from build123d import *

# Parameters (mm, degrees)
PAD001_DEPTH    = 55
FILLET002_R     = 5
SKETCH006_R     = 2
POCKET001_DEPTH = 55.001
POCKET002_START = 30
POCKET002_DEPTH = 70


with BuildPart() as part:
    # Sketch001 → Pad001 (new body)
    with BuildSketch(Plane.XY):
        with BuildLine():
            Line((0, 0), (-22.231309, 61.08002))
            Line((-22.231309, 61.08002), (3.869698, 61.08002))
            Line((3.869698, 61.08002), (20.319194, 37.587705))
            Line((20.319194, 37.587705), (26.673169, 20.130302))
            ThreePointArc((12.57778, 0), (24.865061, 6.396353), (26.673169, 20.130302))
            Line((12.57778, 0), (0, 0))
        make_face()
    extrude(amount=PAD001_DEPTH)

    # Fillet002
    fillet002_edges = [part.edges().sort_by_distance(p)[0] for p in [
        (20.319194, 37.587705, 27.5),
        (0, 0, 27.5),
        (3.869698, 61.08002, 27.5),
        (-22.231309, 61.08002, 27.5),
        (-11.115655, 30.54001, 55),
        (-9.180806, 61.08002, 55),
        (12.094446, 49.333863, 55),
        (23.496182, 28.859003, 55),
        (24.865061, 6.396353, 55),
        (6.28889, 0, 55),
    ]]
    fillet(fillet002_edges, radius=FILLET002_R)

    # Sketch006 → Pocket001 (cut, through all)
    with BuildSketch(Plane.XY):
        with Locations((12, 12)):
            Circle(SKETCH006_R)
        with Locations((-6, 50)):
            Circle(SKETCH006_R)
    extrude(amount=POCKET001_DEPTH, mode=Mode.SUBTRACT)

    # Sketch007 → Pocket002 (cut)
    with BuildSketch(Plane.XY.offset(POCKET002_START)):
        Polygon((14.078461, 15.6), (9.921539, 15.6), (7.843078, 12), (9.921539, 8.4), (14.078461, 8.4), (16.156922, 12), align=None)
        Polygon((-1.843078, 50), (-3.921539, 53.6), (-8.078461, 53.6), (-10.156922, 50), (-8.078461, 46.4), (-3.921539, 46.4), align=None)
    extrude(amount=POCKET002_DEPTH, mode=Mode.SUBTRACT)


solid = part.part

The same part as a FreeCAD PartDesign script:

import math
import FreeCAD as App
import Part
import Sketcher

V = App.Vector
Q = App.Units.Quantity


def edges_at(feature, points):
    """Names of the edges that pass closest to the given points."""
    edges = feature.Shape.Edges
    near = lambda p: min(range(len(edges)), key=lambda i: edges[i].distToShape(Part.Vertex(*p))[0])
    return sorted({f"Edge{near(p) + 1}" for p in points})


def add_polygon(sketch, points):
    """Adds a closed chain of lines whose ends are joined by coincident constraints."""
    first, n = sketch.GeometryCount, len(points)
    for a, b in zip(points, points[1:] + points[:1]):
        sketch.addGeometry(Part.LineSegment(App.Vector(*a, 0), App.Vector(*b, 0)), False)
    for i in range(n):
        sketch.addConstraint(Sketcher.Constraint("Coincident", first + i, 2, first + (i + 1) % n, 1))

doc = App.newDocument("Part")
body = doc.addObject("PartDesign::Body", "Body")

sketch1 = doc.addObject("Sketcher::SketchObject", "Sketch")
body.addObject(sketch1)
sketch1.AttachmentSupport = (doc.XY_Plane, [""])
sketch1.MapMode = "FlatFace"
sketch1.addGeometry([
    Part.LineSegment(V(-22, 61, 0), V(0, 0, 0)),
    Part.LineSegment(V(0, 0, 0), V(13, 0, 0)),
    Part.ArcOfCircle(Part.Circle(V(13, 15, 0), V(0, 0, 1), 15), math.radians(-90), math.radians(20)),
    Part.LineSegment(V(27, 20, 0), V(20, 38, 0)),
    Part.LineSegment(V(20, 38, 0), V(4, 61, 0)),
    Part.LineSegment(V(4, 61, 0), V(-22, 61, 0)),
], False)
sketch1.addConstraint([
    Sketcher.Constraint("Coincident", 0, 2, 1, 1),
    Sketcher.Constraint("Tangent", 1, 2, 2, 1),
    Sketcher.Constraint("Tangent", 2, 2, 3, 1),
    Sketcher.Constraint("Coincident", 3, 2, 4, 1),
    Sketcher.Constraint("Coincident", 4, 2, 5, 1),
    Sketcher.Constraint("Coincident", 5, 2, 0, 1),
    Sketcher.Constraint("Horizontal", 1),
    Sketcher.Constraint("Horizontal", 5),
    Sketcher.Constraint("Coincident", 0, 2, -1, 1),
    Sketcher.Constraint("Parallel", 0, 3),
    Sketcher.Constraint("Radius", 2, 14.999999),
    Sketcher.Constraint("Angle", 0, Q("-70 deg")),
    Sketcher.Constraint("Angle", 4, Q("125 deg")),
    Sketcher.Constraint("Distance", 0, 65.0),
    Sketcher.Constraint("DistanceX", 1, 1, 1, 2, 12.57778),
    Sketcher.Constraint("DistanceX", -1, 1, 4, 2, 3.869698),
])
pad1 = doc.addObject("PartDesign::Pad", "Pad")
body.addObject(pad1)
pad1.Profile = sketch1
pad1.Length = 55
doc.recompute()

fillet = doc.addObject("PartDesign::Fillet", "Fillet")
body.addObject(fillet)
fillet.Base = (pad1, edges_at(pad1, [
    (20.319, 37.588, 27.5),
    (0, 0, 27.5),
    (3.87, 61.08, 27.5),
    (-22.231, 61.08, 27.5),
    (-11.116, 30.54, 55),
    (-9.181, 61.08, 55),
    (12.094, 49.334, 55),
    (23.496, 28.859, 55),
    (24.865, 6.396, 55),
    (6.289, 0, 55),
]))
fillet.Radius = 5

sketch2 = doc.addObject("Sketcher::SketchObject", "Sketch001")
body.addObject(sketch2)
sketch2.AttachmentSupport = (doc.XY_Plane, [""])
sketch2.MapMode = "FlatFace"
sketch2.addGeometry([
    Part.Circle(V(12, 12, 0), V(0, 0, 1), 2),
    Part.Circle(V(-6, 50, 0), V(0, 0, 1), 2),
], False)
sketch2.addConstraint([
    Sketcher.Constraint("Equal", 0, 1),
    Sketcher.Constraint("Diameter", 0, 4.0),
    Sketcher.Constraint("DistanceX", -1, 1, 0, 3, 12.0),
    Sketcher.Constraint("DistanceY", -1, 1, 0, 3, 12.0),
    Sketcher.Constraint("DistanceX", 1, 3, -1, 1, 6.0),
    Sketcher.Constraint("DistanceY", -1, 1, 1, 3, 50.0),
])
pocket1 = doc.addObject("PartDesign::Pocket", "Pocket")
body.addObject(pocket1)
pocket1.Profile = sketch2
pocket1.Type = "ThroughAll"
pocket1.Reversed = True

sketch3 = doc.addObject("Sketcher::SketchObject", "Sketch002")
body.addObject(sketch3)
sketch3.AttachmentSupport = (doc.XY_Plane, [""])
sketch3.MapMode = "FlatFace"
sketch3.AttachmentOffset = App.Placement(V(0, 0, 30), App.Rotation())
add_polygon(sketch3, [(14.1, 15.6), (9.9, 15.6), (7.8, 12), (9.9, 8.4), (14.1, 8.4), (16.2, 12)])
add_polygon(sketch3, [(-1.8, 50), (-3.9, 53.6), (-8.1, 53.6), (-10.2, 50), (-8.1, 46.4), (-3.9, 46.4)])
sketch3.addConstraint([
    Sketcher.Constraint("Horizontal", 0),
    Sketcher.Constraint("Horizontal", 3),
    Sketcher.Constraint("Horizontal", 7),
    Sketcher.Constraint("Horizontal", 10),
    Sketcher.Constraint("Parallel", 1, 4),
    Sketcher.Constraint("Parallel", 2, 5),
    Sketcher.Constraint("Parallel", 5, 6),
    Sketcher.Constraint("Parallel", 4, 8),
    Sketcher.Constraint("Parallel", 6, 9),
    Sketcher.Constraint("Parallel", 8, 11),
    Sketcher.Constraint("Horizontal", 1, 2, 4, 2),
    Sketcher.Constraint("Horizontal", 8, 2, 11, 2),
    Sketcher.Constraint("Vertical", 0, 2, 2, 2),
    Sketcher.Constraint("Vertical", 3, 2, 5, 2),
    Sketcher.Constraint("Vertical", 7, 2, 9, 2),
    Sketcher.Constraint("Equal", 3, 7),
    Sketcher.Constraint("Equal", 5, 6),
    Sketcher.Constraint("Angle", 1, Q("-120 deg")),
    Sketcher.Constraint("DistanceY", -1, 1, 1, 2, 12.0),
    Sketcher.Constraint("DistanceY", -1, 1, 8, 2, 50.0),
    Sketcher.Constraint("DistanceX", 6, 2, 5, 2, 18.0),
    Sketcher.Constraint("DistanceY", -1, 1, 0, 2, 15.6),
    Sketcher.Constraint("DistanceX", 0, 2, 0, 1, 4.156922),
    Sketcher.Constraint("DistanceX", -1, 1, 0, 2, 9.921539),
])
pocket2 = doc.addObject("PartDesign::Pocket", "Pocket001")
body.addObject(pocket2)
pocket2.Profile = sketch3
pocket2.Length = 70
pocket2.Reversed = True

doc.recompute()
